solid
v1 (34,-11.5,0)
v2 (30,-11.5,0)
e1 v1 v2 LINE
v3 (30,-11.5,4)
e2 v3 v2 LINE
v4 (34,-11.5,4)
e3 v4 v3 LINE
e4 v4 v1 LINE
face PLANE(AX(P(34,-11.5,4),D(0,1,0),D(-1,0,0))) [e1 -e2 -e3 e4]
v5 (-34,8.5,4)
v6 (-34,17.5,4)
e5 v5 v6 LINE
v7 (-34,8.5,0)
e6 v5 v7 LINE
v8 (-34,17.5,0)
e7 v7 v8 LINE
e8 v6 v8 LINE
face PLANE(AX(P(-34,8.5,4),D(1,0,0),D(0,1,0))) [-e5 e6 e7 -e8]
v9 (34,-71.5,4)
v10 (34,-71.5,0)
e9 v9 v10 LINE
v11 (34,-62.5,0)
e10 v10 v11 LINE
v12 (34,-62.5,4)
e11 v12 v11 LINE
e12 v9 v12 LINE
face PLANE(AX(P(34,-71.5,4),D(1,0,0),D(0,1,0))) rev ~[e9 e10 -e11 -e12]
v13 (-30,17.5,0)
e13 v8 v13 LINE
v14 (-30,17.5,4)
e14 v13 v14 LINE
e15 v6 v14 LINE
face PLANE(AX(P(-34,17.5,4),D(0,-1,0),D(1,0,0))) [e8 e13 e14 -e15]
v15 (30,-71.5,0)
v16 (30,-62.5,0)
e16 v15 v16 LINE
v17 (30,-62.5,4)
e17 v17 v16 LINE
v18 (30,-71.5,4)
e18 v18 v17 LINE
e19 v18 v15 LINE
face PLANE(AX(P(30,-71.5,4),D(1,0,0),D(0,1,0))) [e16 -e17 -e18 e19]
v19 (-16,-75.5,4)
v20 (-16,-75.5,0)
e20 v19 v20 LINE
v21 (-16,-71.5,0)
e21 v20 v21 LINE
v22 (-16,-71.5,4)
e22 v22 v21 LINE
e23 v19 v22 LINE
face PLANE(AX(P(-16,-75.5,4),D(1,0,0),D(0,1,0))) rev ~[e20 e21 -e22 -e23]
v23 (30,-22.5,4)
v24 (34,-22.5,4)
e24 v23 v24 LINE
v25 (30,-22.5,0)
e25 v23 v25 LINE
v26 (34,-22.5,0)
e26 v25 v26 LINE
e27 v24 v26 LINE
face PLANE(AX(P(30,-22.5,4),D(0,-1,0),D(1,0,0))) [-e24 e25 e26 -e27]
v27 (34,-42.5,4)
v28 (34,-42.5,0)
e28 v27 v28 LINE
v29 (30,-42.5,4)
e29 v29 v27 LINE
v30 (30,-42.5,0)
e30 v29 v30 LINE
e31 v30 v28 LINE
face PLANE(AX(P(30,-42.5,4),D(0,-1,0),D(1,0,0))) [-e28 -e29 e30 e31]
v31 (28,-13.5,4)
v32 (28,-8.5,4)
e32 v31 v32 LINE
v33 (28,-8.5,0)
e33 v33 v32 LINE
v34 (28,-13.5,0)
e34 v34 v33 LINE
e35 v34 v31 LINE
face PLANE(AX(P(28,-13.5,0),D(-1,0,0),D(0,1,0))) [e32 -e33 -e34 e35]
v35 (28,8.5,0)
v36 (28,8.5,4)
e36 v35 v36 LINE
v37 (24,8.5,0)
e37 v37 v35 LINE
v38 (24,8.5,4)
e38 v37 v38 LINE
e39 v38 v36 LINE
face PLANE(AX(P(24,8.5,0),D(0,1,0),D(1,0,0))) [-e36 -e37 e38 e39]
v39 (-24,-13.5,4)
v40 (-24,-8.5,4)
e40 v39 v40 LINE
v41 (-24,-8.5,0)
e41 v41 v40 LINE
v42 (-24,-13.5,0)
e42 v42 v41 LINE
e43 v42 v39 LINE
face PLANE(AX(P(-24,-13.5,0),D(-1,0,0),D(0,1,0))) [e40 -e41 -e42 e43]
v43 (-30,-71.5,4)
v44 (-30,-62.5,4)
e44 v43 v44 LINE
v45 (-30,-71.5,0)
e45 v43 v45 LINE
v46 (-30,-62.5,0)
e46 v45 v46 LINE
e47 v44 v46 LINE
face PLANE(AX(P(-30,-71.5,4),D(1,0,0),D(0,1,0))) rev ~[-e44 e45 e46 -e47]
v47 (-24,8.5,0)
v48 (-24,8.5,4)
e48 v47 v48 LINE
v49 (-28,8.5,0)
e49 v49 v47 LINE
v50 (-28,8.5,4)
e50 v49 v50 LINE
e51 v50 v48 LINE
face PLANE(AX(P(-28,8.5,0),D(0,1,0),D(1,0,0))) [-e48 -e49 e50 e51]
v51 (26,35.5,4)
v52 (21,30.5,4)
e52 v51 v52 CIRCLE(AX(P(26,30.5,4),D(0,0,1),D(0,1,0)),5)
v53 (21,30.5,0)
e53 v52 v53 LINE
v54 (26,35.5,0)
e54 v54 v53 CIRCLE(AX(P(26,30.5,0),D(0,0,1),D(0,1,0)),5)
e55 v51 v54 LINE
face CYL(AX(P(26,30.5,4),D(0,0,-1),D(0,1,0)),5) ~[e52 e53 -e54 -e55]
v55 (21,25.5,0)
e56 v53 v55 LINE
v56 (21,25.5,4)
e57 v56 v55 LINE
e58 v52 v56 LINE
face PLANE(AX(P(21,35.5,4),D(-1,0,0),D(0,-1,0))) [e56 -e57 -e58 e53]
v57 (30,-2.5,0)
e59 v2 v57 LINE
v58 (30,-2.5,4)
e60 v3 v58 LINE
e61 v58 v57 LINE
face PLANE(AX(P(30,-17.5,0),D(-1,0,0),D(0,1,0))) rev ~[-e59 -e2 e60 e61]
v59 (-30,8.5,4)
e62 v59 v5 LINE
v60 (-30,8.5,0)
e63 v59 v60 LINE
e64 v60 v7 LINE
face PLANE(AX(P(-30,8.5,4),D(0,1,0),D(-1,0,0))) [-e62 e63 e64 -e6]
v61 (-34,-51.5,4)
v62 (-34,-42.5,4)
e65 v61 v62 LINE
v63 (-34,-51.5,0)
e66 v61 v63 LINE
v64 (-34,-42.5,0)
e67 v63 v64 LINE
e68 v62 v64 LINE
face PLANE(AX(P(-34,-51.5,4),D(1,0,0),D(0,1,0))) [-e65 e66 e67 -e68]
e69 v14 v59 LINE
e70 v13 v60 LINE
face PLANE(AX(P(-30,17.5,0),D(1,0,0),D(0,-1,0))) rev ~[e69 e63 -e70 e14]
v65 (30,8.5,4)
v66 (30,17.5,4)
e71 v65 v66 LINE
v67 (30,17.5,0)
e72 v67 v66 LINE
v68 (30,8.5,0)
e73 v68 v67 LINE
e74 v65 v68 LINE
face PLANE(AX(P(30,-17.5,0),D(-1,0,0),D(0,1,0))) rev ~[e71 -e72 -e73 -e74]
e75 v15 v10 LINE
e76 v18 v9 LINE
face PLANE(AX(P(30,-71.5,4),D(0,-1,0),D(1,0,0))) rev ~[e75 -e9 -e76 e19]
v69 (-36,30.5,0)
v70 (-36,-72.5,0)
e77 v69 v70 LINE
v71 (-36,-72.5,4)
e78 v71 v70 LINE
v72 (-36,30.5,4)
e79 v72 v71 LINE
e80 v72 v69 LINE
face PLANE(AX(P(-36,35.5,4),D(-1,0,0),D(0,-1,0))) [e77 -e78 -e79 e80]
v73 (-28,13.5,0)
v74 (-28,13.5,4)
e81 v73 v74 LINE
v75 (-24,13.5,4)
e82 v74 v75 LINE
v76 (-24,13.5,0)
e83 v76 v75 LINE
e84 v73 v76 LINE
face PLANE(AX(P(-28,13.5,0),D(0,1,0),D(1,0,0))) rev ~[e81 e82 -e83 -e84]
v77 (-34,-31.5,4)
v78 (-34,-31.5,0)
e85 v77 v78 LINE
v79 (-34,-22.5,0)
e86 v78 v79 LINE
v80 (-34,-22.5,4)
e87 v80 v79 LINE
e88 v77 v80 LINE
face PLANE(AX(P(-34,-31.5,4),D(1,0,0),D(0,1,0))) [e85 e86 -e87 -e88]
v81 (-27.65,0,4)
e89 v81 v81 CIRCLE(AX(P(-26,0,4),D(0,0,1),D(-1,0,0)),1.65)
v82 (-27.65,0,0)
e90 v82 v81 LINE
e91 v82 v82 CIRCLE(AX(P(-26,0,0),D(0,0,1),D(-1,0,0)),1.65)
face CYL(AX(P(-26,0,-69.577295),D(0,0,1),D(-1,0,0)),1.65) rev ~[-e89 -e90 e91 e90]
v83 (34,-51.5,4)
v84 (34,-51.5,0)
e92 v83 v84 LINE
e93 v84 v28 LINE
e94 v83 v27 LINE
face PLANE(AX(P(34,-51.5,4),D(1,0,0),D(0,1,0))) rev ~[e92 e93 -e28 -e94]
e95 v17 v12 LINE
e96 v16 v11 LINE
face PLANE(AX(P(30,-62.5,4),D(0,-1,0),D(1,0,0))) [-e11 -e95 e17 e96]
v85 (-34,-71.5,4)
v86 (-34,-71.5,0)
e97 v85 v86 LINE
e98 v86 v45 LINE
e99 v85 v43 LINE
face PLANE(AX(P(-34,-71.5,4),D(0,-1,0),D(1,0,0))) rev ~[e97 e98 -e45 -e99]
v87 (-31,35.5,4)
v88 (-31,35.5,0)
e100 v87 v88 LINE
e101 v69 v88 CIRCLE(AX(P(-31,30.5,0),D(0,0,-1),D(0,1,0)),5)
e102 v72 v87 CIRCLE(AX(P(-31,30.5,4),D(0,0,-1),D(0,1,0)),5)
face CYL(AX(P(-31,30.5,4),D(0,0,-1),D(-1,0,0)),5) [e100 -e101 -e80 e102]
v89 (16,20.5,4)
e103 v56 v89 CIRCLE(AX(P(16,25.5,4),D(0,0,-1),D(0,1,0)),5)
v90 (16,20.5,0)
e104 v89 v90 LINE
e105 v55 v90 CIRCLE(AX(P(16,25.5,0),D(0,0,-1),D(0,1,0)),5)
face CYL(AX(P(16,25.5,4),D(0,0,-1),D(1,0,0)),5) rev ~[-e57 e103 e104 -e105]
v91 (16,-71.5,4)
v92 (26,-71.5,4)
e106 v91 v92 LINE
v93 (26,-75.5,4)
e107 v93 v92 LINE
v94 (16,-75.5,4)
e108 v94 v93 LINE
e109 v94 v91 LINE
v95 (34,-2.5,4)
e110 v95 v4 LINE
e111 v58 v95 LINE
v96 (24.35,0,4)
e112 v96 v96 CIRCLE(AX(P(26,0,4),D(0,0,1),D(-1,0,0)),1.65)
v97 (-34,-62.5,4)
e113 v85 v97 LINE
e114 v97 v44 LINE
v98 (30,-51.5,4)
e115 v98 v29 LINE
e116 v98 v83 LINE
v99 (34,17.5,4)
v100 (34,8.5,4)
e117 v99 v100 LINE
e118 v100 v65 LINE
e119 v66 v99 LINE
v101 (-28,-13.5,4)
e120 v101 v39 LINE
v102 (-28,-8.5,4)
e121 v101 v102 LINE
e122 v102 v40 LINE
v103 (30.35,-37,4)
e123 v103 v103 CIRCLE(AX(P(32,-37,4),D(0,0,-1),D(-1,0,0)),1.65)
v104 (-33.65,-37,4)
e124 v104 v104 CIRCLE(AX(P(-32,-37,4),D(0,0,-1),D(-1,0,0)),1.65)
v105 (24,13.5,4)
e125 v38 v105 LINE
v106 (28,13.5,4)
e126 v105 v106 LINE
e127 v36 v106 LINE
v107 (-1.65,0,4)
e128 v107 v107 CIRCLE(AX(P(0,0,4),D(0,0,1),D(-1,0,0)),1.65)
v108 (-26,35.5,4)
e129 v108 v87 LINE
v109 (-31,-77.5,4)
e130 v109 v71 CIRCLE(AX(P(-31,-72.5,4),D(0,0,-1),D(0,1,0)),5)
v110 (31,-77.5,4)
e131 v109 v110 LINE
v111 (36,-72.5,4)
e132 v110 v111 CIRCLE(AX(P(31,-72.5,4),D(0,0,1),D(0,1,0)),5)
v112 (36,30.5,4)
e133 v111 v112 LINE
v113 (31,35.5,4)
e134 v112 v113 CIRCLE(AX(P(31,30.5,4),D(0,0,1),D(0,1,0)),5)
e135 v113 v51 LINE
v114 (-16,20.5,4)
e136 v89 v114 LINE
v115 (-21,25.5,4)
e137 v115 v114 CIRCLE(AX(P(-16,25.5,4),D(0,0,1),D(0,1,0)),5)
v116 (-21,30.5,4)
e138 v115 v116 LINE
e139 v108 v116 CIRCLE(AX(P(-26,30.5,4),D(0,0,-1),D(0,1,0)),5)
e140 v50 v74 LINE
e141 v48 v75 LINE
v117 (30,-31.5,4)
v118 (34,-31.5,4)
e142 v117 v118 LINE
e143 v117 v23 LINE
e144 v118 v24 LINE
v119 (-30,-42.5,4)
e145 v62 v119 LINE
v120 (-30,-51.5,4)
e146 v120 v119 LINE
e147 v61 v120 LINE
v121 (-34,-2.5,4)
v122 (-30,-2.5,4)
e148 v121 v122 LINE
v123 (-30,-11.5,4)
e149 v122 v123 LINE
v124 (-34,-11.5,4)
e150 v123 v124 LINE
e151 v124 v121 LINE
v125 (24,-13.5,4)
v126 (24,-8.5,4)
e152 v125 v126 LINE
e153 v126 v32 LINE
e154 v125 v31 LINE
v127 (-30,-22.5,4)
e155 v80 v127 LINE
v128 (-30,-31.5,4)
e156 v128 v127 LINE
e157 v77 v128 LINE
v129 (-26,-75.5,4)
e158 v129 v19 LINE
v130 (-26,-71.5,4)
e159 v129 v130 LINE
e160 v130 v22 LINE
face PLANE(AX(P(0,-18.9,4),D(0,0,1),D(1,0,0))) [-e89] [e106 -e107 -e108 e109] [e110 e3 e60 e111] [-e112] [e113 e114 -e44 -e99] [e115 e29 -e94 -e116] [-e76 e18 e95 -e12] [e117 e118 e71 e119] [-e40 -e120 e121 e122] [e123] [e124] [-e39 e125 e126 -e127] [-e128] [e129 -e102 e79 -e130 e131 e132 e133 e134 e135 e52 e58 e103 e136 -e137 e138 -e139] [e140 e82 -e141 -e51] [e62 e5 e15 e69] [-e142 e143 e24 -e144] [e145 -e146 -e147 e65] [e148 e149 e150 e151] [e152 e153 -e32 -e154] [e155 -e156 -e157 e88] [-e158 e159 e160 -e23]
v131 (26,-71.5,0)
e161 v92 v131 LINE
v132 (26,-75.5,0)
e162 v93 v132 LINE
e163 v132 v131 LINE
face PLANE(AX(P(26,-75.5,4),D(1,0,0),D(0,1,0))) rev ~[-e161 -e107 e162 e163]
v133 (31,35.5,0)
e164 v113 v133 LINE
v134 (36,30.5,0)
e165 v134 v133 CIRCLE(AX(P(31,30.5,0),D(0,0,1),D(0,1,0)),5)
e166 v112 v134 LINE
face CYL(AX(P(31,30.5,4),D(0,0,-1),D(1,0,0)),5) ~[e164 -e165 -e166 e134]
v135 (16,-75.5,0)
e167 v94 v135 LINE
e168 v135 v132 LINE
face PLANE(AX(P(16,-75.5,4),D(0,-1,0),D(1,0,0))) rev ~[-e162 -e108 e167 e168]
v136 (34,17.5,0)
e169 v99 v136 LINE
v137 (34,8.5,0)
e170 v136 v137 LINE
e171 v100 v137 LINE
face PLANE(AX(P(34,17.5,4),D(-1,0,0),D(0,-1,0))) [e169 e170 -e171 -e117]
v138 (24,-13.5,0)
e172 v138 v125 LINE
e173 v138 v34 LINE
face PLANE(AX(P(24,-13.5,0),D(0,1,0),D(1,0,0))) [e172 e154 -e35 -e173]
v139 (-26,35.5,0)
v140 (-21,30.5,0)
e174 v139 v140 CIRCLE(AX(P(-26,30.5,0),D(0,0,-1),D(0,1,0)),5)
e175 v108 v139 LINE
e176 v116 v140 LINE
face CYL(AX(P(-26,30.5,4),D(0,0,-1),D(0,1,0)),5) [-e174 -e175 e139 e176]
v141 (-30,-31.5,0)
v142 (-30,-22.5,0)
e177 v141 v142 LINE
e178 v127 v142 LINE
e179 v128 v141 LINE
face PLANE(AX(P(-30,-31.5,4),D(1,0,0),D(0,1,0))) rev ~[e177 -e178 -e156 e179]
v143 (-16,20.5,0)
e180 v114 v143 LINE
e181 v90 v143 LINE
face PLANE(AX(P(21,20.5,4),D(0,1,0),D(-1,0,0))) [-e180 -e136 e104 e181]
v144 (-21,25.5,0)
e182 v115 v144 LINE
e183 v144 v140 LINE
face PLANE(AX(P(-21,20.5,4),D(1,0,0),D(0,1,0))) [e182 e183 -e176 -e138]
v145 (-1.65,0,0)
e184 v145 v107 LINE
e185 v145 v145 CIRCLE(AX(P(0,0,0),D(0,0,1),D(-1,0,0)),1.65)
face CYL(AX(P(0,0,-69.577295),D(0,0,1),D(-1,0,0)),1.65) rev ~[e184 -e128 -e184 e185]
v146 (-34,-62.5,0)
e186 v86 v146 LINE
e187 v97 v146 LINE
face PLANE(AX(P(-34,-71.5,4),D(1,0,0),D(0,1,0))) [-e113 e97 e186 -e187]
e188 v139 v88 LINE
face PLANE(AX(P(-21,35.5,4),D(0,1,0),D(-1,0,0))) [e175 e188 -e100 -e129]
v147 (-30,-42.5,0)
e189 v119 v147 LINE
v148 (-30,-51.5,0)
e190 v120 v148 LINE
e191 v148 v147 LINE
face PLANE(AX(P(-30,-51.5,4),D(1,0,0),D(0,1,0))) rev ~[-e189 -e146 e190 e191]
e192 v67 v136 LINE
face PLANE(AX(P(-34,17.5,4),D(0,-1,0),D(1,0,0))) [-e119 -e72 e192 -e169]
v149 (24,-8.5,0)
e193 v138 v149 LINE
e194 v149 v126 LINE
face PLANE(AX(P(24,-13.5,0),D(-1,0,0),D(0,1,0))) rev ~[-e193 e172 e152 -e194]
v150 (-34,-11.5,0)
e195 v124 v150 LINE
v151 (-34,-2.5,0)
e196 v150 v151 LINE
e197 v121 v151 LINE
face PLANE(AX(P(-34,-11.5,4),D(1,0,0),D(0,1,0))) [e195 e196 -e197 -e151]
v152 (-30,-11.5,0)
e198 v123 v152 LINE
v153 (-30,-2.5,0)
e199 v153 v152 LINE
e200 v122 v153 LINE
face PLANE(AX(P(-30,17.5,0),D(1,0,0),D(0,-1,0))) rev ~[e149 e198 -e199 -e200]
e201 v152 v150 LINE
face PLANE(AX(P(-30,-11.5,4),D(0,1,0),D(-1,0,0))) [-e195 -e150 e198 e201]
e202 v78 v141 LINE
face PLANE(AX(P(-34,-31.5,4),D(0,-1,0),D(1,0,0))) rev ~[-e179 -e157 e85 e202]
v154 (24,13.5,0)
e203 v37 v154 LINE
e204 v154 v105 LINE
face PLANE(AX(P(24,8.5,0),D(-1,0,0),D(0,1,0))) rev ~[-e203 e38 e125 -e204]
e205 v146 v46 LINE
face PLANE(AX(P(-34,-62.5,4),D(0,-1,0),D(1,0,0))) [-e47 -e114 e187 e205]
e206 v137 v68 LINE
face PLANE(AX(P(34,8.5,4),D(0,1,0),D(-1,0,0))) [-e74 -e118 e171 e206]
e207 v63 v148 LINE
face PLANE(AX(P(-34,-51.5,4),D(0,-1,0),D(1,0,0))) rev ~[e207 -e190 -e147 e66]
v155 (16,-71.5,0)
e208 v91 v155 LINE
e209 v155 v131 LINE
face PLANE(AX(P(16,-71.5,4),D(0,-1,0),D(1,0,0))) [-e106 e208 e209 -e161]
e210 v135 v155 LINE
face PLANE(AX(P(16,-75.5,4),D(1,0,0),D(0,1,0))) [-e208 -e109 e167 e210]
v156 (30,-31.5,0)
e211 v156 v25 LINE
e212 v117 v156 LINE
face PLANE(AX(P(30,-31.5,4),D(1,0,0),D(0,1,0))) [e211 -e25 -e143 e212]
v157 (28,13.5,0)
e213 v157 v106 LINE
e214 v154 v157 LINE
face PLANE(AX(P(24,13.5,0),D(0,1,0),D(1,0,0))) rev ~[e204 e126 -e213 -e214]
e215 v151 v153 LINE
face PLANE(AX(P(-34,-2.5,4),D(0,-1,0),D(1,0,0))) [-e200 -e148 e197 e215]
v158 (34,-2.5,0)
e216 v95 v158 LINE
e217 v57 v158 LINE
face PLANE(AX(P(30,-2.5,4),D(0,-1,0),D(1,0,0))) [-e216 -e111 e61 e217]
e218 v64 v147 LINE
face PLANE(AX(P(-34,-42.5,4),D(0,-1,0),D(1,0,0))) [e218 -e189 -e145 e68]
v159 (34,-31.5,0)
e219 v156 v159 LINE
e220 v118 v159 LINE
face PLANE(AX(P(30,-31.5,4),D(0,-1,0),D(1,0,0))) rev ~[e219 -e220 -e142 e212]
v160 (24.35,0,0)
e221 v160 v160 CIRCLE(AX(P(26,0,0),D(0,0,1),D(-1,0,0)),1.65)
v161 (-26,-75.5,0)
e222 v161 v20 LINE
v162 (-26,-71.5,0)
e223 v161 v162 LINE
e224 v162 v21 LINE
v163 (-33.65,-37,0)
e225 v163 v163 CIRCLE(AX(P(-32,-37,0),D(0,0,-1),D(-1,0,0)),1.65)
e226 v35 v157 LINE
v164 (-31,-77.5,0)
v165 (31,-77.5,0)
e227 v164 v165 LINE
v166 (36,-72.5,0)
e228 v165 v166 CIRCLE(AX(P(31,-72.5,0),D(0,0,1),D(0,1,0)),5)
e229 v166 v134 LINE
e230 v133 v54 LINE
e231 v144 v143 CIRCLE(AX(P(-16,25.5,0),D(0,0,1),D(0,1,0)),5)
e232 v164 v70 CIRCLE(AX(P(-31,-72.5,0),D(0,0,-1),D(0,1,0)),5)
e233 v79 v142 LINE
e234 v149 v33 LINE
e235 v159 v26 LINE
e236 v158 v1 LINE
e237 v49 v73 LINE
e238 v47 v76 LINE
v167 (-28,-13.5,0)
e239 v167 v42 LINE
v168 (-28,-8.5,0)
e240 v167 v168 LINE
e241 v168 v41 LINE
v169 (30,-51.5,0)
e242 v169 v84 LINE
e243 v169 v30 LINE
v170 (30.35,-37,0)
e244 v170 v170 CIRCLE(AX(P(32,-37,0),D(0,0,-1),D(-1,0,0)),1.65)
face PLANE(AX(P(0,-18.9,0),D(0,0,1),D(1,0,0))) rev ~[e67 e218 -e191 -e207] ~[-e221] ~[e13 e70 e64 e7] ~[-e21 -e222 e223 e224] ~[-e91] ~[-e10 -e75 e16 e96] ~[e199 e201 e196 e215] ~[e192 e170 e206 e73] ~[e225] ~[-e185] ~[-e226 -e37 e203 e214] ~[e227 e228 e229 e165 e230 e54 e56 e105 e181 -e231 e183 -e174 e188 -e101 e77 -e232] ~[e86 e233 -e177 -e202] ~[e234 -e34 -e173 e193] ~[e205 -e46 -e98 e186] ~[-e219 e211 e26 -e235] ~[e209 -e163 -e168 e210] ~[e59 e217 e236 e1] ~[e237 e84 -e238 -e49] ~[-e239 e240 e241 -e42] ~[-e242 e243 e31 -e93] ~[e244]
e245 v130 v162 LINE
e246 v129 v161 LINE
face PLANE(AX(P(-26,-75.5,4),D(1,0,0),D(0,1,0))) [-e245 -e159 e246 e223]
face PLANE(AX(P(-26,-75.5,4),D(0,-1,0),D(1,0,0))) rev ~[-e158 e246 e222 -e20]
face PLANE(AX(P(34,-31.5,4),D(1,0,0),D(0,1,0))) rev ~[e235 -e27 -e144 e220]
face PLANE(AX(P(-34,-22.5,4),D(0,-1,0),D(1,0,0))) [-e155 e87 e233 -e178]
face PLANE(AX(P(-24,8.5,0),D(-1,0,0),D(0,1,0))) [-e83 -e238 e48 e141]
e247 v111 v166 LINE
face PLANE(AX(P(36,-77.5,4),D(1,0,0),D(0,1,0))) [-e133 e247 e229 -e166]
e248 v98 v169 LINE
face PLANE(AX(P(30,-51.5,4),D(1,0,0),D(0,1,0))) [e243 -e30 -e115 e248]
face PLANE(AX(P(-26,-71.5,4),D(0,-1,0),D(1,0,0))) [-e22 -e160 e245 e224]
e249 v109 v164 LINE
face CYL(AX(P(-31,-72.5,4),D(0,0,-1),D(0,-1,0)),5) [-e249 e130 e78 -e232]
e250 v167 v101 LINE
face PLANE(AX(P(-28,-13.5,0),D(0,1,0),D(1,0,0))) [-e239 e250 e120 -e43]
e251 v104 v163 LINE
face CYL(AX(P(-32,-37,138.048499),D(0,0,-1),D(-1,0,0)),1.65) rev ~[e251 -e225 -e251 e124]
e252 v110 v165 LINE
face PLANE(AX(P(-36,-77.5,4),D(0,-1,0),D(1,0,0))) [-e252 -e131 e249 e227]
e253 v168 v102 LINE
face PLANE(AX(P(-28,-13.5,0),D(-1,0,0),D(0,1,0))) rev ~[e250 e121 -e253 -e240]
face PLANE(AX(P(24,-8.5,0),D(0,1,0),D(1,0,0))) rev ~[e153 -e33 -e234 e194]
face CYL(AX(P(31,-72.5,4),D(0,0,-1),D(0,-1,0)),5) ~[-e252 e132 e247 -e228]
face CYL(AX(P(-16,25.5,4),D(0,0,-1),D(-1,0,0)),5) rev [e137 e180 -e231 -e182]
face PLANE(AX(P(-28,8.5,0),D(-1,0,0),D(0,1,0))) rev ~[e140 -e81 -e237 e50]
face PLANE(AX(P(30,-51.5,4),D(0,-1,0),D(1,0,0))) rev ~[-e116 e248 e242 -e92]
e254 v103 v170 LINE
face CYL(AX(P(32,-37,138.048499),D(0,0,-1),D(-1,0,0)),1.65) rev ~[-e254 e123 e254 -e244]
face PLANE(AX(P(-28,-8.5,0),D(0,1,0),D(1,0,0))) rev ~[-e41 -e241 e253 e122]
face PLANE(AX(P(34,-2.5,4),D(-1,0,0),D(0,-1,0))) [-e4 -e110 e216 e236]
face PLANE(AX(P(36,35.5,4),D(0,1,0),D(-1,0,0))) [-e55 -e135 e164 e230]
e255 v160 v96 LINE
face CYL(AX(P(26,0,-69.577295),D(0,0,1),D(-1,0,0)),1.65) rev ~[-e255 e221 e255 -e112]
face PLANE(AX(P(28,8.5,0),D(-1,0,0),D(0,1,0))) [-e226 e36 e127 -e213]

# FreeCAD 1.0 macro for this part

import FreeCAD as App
import Part
import Sketcher

V = App.Vector
Q = App.Units.Quantity


def edges_at(feature, points):
    """Names of the edges that pass closest to the given points."""
    edges = feature.Shape.Edges
    near = lambda p: min(range(len(edges)), key=lambda i: edges[i].distToShape(Part.Vertex(*p))[0])
    return sorted({f"Edge{near(p) + 1}" for p in points})

doc = App.newDocument("Part")
body = doc.addObject("PartDesign::Body", "Body")

sketch1 = body.newObject("Sketcher::SketchObject", "Sketch")
sketch1.AttachmentSupport = (doc.getObject("XY_Plane"), [""])
sketch1.MapMode = "FlatFace"
sketch1.addGeometry(Part.LineSegment(V(30, -17.5, 0), V(30, 17.5, 0)), False)
sketch1.addGeometry(Part.LineSegment(V(30, 17.5, 0), V(-30, 17.5, 0)), False)
sketch1.addGeometry(Part.LineSegment(V(-30, 17.5, 0), V(-30, -17.5, 0)), False)
sketch1.addGeometry(Part.LineSegment(V(-30, -17.5, 0), V(30, -17.5, 0)), False)
sketch1.addGeometry(Part.LineSegment(V(-24, -13.5, 0), V(-28, -13.5, 0)), False)
sketch1.addGeometry(Part.LineSegment(V(-28, -13.5, 0), V(-28, -8.5, 0)), False)
sketch1.addGeometry(Part.LineSegment(V(-28, -8.5, 0), V(-24, -8.5, 0)), False)
sketch1.addGeometry(Part.LineSegment(V(-24, -8.5, 0), V(-24, -13.5, 0)), False)
sketch1.addGeometry(Part.LineSegment(V(28, -13.5, 0), V(24, -13.5, 0)), False)
sketch1.addGeometry(Part.LineSegment(V(24, -13.5, 0), V(24, -8.5, 0)), False)
sketch1.addGeometry(Part.LineSegment(V(24, -8.5, 0), V(28, -8.5, 0)), False)
sketch1.addGeometry(Part.LineSegment(V(28, -8.5, 0), V(28, -13.5, 0)), False)
sketch1.addGeometry(Part.LineSegment(V(-24, 8.5, 0), V(-28, 8.5, 0)), False)
sketch1.addGeometry(Part.LineSegment(V(-28, 8.5, 0), V(-28, 13.5, 0)), False)
sketch1.addGeometry(Part.LineSegment(V(-28, 13.5, 0), V(-24, 13.5, 0)), False)
sketch1.addGeometry(Part.LineSegment(V(-24, 13.5, 0), V(-24, 8.5, 0)), False)
sketch1.addGeometry(Part.LineSegment(V(28, 8.5, 0), V(24, 8.5, 0)), False)
sketch1.addGeometry(Part.LineSegment(V(24, 8.5, 0), V(24, 13.5, 0)), False)
sketch1.addGeometry(Part.LineSegment(V(24, 13.5, 0), V(28, 13.5, 0)), False)
sketch1.addGeometry(Part.LineSegment(V(28, 13.5, 0), V(28, 8.5, 0)), False)
sketch1.addConstraint(Sketcher.Constraint("Coincident", 0, 2, 1, 1))
sketch1.addConstraint(Sketcher.Constraint("Coincident", 1, 2, 2, 1))
sketch1.addConstraint(Sketcher.Constraint("Coincident", 2, 2, 3, 1))
sketch1.addConstraint(Sketcher.Constraint("Coincident", 3, 2, 0, 1))
sketch1.addConstraint(Sketcher.Constraint("Coincident", 4, 2, 5, 1))
sketch1.addConstraint(Sketcher.Constraint("Coincident", 5, 2, 6, 1))
sketch1.addConstraint(Sketcher.Constraint("Coincident", 6, 2, 7, 1))
sketch1.addConstraint(Sketcher.Constraint("Coincident", 7, 2, 4, 1))
sketch1.addConstraint(Sketcher.Constraint("Coincident", 8, 2, 9, 1))
sketch1.addConstraint(Sketcher.Constraint("Coincident", 9, 2, 10, 1))
sketch1.addConstraint(Sketcher.Constraint("Coincident", 10, 2, 11, 1))
sketch1.addConstraint(Sketcher.Constraint("Coincident", 11, 2, 8, 1))
sketch1.addConstraint(Sketcher.Constraint("Coincident", 12, 2, 13, 1))
sketch1.addConstraint(Sketcher.Constraint("Coincident", 13, 2, 14, 1))
sketch1.addConstraint(Sketcher.Constraint("Coincident", 14, 2, 15, 1))
sketch1.addConstraint(Sketcher.Constraint("Coincident", 15, 2, 12, 1))
sketch1.addConstraint(Sketcher.Constraint("Coincident", 16, 2, 17, 1))
sketch1.addConstraint(Sketcher.Constraint("Coincident", 17, 2, 18, 1))
sketch1.addConstraint(Sketcher.Constraint("Coincident", 18, 2, 19, 1))
sketch1.addConstraint(Sketcher.Constraint("Coincident", 19, 2, 16, 1))
sketch1.addConstraint(Sketcher.Constraint("Vertical", 0))
sketch1.addConstraint(Sketcher.Constraint("Horizontal", 1))
sketch1.addConstraint(Sketcher.Constraint("Vertical", 2))
sketch1.addConstraint(Sketcher.Constraint("Horizontal", 3))
sketch1.addConstraint(Sketcher.Constraint("Horizontal", 4))
sketch1.addConstraint(Sketcher.Constraint("Vertical", 5))
sketch1.addConstraint(Sketcher.Constraint("Horizontal", 6))
sketch1.addConstraint(Sketcher.Constraint("Vertical", 7))
sketch1.addConstraint(Sketcher.Constraint("Horizontal", 8))
sketch1.addConstraint(Sketcher.Constraint("Vertical", 9))
sketch1.addConstraint(Sketcher.Constraint("Horizontal", 10))
sketch1.addConstraint(Sketcher.Constraint("Vertical", 11))
sketch1.addConstraint(Sketcher.Constraint("Horizontal", 12))
sketch1.addConstraint(Sketcher.Constraint("Vertical", 13))
sketch1.addConstraint(Sketcher.Constraint("Horizontal", 14))
sketch1.addConstraint(Sketcher.Constraint("Vertical", 15))
sketch1.addConstraint(Sketcher.Constraint("Horizontal", 16))
sketch1.addConstraint(Sketcher.Constraint("Vertical", 17))
sketch1.addConstraint(Sketcher.Constraint("Horizontal", 18))
sketch1.addConstraint(Sketcher.Constraint("Vertical", 19))
sketch1.addConstraint(Sketcher.Constraint("Symmetric", 0, 2, 2, 2, -1, 1))
sketch1.addConstraint(Sketcher.Constraint("Symmetric", 10, 2, 12, 2, -1, 1))
sketch1.addConstraint(Sketcher.Constraint("Symmetric", 8, 2, 14, 2, -1, 1))
sketch1.addConstraint(Sketcher.Constraint("Symmetric", 6, 2, 16, 2, -1, 1))
sketch1.addConstraint(Sketcher.Constraint("Symmetric", 4, 2, 18, 2, -1, 1))
sketch1.addConstraint(Sketcher.Constraint("Symmetric", 7, 2, 8, 2, -2))
sketch1.addConstraint(Sketcher.Constraint("Symmetric", 5, 2, 10, 2, -2))
sketch1.addConstraint(Sketcher.Constraint("DistanceX", 1, 2, 1, 1, Q("60 mm")))
sketch1.addConstraint(Sketcher.Constraint("DistanceX", 4, 2, 4, 1, Q("4 mm")))
sketch1.addConstraint(Sketcher.Constraint("DistanceY", 0, 1, 0, 2, Q("35 mm")))
sketch1.addConstraint(Sketcher.Constraint("DistanceY", 5, 1, 5, 2, Q("5 mm")))
sketch1.addConstraint(Sketcher.Constraint("DistanceX", 4, 2, -1, 1, Q("28 mm")))
sketch1.addConstraint(Sketcher.Constraint("DistanceY", 2, 2, 4, 2, Q("4 mm")))
pad1 = body.newObject("PartDesign::Pad", "Pad")
pad1.Profile = sketch1
pad1.Length = 4

sketch2 = body.newObject("Sketcher::SketchObject", "Sketch001")
sketch2.AttachmentSupport = (doc.getObject("XY_Plane"), [""])
sketch2.MapMode = "FlatFace"
sketch2.addGeometry(Part.Circle(V(-26, 0, 0), V(0, 0, 1), 1.6), False)
sketch2.addGeometry(Part.Circle(V(26, 0, 0), V(0, 0, 1), 1.6), False)
sketch2.addConstraint(Sketcher.Constraint("Equal", 0, 1))
sketch2.addConstraint(Sketcher.Constraint("Symmetric", 0, 3, 1, 3, -1, 1))
sketch2.addConstraint(Sketcher.Constraint("PointOnObject", 0, 3, -1))
sketch2.addConstraint(Sketcher.Constraint("Diameter", 0, Q("3.3 mm")))
sketch2.addConstraint(Sketcher.Constraint("DistanceX", 0, 3, -1, 1, Q("26 mm")))
doc.recompute()
hole = body.newObject("PartDesign::Hole", "Hole")
hole.Profile = sketch2
hole.ThreadType = "None"
hole.Diameter = 3.3
hole.DepthType = "ThroughAll"
hole.Reversed = True

sketch3 = body.newObject("Sketcher::SketchObject", "Sketch002")
sketch3.AttachmentSupport = (doc.getObject("XY_Plane"), [""])
sketch3.MapMode = "FlatFace"
sketch3.addGeometry(Part.Circle(V(0, 0, 0), V(0, 0, 1), 1.6), False)
sketch3.addConstraint(Sketcher.Constraint("Coincident", 0, 3, -1, 1))
sketch3.addConstraint(Sketcher.Constraint("Diameter", 0, Q("3.3 mm")))
doc.recompute()
hole2 = body.newObject("PartDesign::Hole", "Hole001")
hole2.Profile = sketch3
hole2.ThreadType = "None"
hole2.Diameter = 3.3
hole2.DepthType = "ThroughAll"
hole2.Reversed = True

sketch4 = body.newObject("Sketcher::SketchObject", "Sketch003")
sketch4.AttachmentSupport = (doc.getObject("XY_Plane"), [""])
sketch4.MapMode = "FlatFace"
sketch4.AttachmentOffset = App.Placement(V(0, 0, 4), App.Rotation())
sketch4.addGeometry(Part.LineSegment(V(-36, -77.5, 0), V(36, -77.5, 0)), False)
sketch4.addGeometry(Part.LineSegment(V(36, -77.5, 0), V(36, 35.5, 0)), False)
sketch4.addGeometry(Part.LineSegment(V(36, 35.5, 0), V(21, 35.5, 0)), False)
sketch4.addGeometry(Part.LineSegment(V(21, 35.5, 0), V(21, 20.5, 0)), False)
sketch4.addGeometry(Part.LineSegment(V(21, 20.5, 0), V(-21, 20.5, 0)), False)
sketch4.addGeometry(Part.LineSegment(V(-21, 20.5, 0), V(-21, 35.5, 0)), False)
sketch4.addGeometry(Part.LineSegment(V(-21, 35.5, 0), V(-36, 35.5, 0)), False)
sketch4.addGeometry(Part.LineSegment(V(-36, 35.5, 0), V(-36, -77.5, 0)), False)
sketch4.addGeometry(Part.LineSegment(V(-30, -71.5, 0), V(-34, -71.5, 0)), False)
sketch4.addGeometry(Part.LineSegment(V(-34, -71.5, 0), V(-34, -62.5, 0)), False)
sketch4.addGeometry(Part.LineSegment(V(-34, -62.5, 0), V(-30, -62.5, 0)), False)
sketch4.addGeometry(Part.LineSegment(V(-30, -62.5, 0), V(-30, -71.5, 0)), False)
sketch4.addGeometry(Part.LineSegment(V(-16, -75.5, 0), V(-26, -75.5, 0)), False)
sketch4.addGeometry(Part.LineSegment(V(-26, -75.5, 0), V(-26, -71.5, 0)), False)
sketch4.addGeometry(Part.LineSegment(V(-26, -71.5, 0), V(-16, -71.5, 0)), False)
sketch4.addGeometry(Part.LineSegment(V(-16, -71.5, 0), V(-16, -75.5, 0)), False)
sketch4.addGeometry(Part.LineSegment(V(-30, -51.5, 0), V(-34, -51.5, 0)), False)
sketch4.addGeometry(Part.LineSegment(V(-34, -51.5, 0), V(-34, -42.5, 0)), False)
sketch4.addGeometry(Part.LineSegment(V(-34, -42.5, 0), V(-30, -42.5, 0)), False)
sketch4.addGeometry(Part.LineSegment(V(-30, -42.5, 0), V(-30, -51.5, 0)), False)
sketch4.addGeometry(Part.LineSegment(V(26, -75.5, 0), V(16, -75.5, 0)), False)
sketch4.addGeometry(Part.LineSegment(V(16, -75.5, 0), V(16, -71.5, 0)), False)
sketch4.addGeometry(Part.LineSegment(V(16, -71.5, 0), V(26, -71.5, 0)), False)
sketch4.addGeometry(Part.LineSegment(V(26, -71.5, 0), V(26, -75.5, 0)), False)
sketch4.addGeometry(Part.LineSegment(V(34, -71.5, 0), V(30, -71.5, 0)), False)
sketch4.addGeometry(Part.LineSegment(V(30, -71.5, 0), V(30, -62.5, 0)), False)
sketch4.addGeometry(Part.LineSegment(V(30, -62.5, 0), V(34, -62.5, 0)), False)
sketch4.addGeometry(Part.LineSegment(V(34, -62.5, 0), V(34, -71.5, 0)), False)
sketch4.addGeometry(Part.LineSegment(V(34, -51.5, 0), V(30, -51.5, 0)), False)
sketch4.addGeometry(Part.LineSegment(V(30, -51.5, 0), V(30, -42.5, 0)), False)
sketch4.addGeometry(Part.LineSegment(V(30, -42.5, 0), V(34, -42.5, 0)), False)
sketch4.addGeometry(Part.LineSegment(V(34, -42.5, 0), V(34, -51.5, 0)), False)
sketch4.addGeometry(Part.LineSegment(V(-30, -31.5, 0), V(-34, -31.5, 0)), False)
sketch4.addGeometry(Part.LineSegment(V(-34, -31.5, 0), V(-34, -22.5, 0)), False)
sketch4.addGeometry(Part.LineSegment(V(-34, -22.5, 0), V(-30, -22.5, 0)), False)
sketch4.addGeometry(Part.LineSegment(V(-30, -22.5, 0), V(-30, -31.5, 0)), False)
sketch4.addGeometry(Part.LineSegment(V(34, -31.5, 0), V(30, -31.5, 0)), False)
sketch4.addGeometry(Part.LineSegment(V(30, -31.5, 0), V(30, -22.5, 0)), False)
sketch4.addGeometry(Part.LineSegment(V(30, -22.5, 0), V(34, -22.5, 0)), False)
sketch4.addGeometry(Part.LineSegment(V(34, -22.5, 0), V(34, -31.5, 0)), False)
sketch4.addGeometry(Part.LineSegment(V(-34, 8.5, 0), V(-34, 17.5, 0)), False)
sketch4.addGeometry(Part.LineSegment(V(-34, 17.5, 0), V(34, 17.5, 0)), False)
sketch4.addGeometry(Part.LineSegment(V(34, 17.5, 0), V(34, 8.5, 0)), False)
sketch4.addGeometry(Part.LineSegment(V(34, 8.5, 0), V(30, 8.5, 0)), False)
sketch4.addGeometry(Part.LineSegment(V(30, 8.5, 0), V(30, -2.5, 0)), False)
sketch4.addGeometry(Part.LineSegment(V(30, -2.5, 0), V(34, -2.5, 0)), False)
sketch4.addGeometry(Part.LineSegment(V(34, -2.5, 0), V(34, -11.5, 0)), False)
sketch4.addGeometry(Part.LineSegment(V(34, -11.5, 0), V(30, -11.5, 0)), False)
sketch4.addGeometry(Part.LineSegment(V(30, -11.5, 0), V(30, -17.5, 0)), False)
sketch4.addGeometry(Part.LineSegment(V(30, -17.5, 0), V(-30, -17.5, 0)), False)
sketch4.addGeometry(Part.LineSegment(V(-30, -17.5, 0), V(-30, -11.5, 0)), False)
sketch4.addGeometry(Part.LineSegment(V(-30, -11.5, 0), V(-34, -11.5, 0)), False)
sketch4.addGeometry(Part.LineSegment(V(-34, -11.5, 0), V(-34, -2.5, 0)), False)
sketch4.addGeometry(Part.LineSegment(V(-34, -2.5, 0), V(-30, -2.5, 0)), False)
sketch4.addGeometry(Part.LineSegment(V(-30, -2.5, 0), V(-30, 8.5, 0)), False)
sketch4.addGeometry(Part.LineSegment(V(-30, 8.5, 0), V(-34, 8.5, 0)), False)
sketch4.addConstraint(Sketcher.Constraint("Coincident", 0, 2, 1, 1))
sketch4.addConstraint(Sketcher.Constraint("Coincident", 1, 2, 2, 1))
sketch4.addConstraint(Sketcher.Constraint("Coincident", 2, 2, 3, 1))
sketch4.addConstraint(Sketcher.Constraint("Coincident", 3, 2, 4, 1))
sketch4.addConstraint(Sketcher.Constraint("Coincident", 4, 2, 5, 1))
sketch4.addConstraint(Sketcher.Constraint("Coincident", 5, 2, 6, 1))
sketch4.addConstraint(Sketcher.Constraint("Coincident", 6, 2, 7, 1))
sketch4.addConstraint(Sketcher.Constraint("Coincident", 7, 2, 0, 1))
sketch4.addConstraint(Sketcher.Constraint("Coincident", 8, 2, 9, 1))
sketch4.addConstraint(Sketcher.Constraint("Coincident", 9, 2, 10, 1))
sketch4.addConstraint(Sketcher.Constraint("Coincident", 10, 2, 11, 1))
sketch4.addConstraint(Sketcher.Constraint("Coincident", 11, 2, 8, 1))
sketch4.addConstraint(Sketcher.Constraint("Coincident", 12, 2, 13, 1))
sketch4.addConstraint(Sketcher.Constraint("Coincident", 13, 2, 14, 1))
sketch4.addConstraint(Sketcher.Constraint("Coincident", 14, 2, 15, 1))
sketch4.addConstraint(Sketcher.Constraint("Coincident", 15, 2, 12, 1))
sketch4.addConstraint(Sketcher.Constraint("Coincident", 16, 2, 17, 1))
sketch4.addConstraint(Sketcher.Constraint("Coincident", 17, 2, 18, 1))
sketch4.addConstraint(Sketcher.Constraint("Coincident", 18, 2, 19, 1))
sketch4.addConstraint(Sketcher.Constraint("Coincident", 19, 2, 16, 1))
sketch4.addConstraint(Sketcher.Constraint("Coincident", 20, 2, 21, 1))
sketch4.addConstraint(Sketcher.Constraint("Coincident", 21, 2, 22, 1))
sketch4.addConstraint(Sketcher.Constraint("Coincident", 22, 2, 23, 1))
sketch4.addConstraint(Sketcher.Constraint("Coincident", 23, 2, 20, 1))
sketch4.addConstraint(Sketcher.Constraint("Coincident", 24, 2, 25, 1))
sketch4.addConstraint(Sketcher.Constraint("Coincident", 25, 2, 26, 1))
sketch4.addConstraint(Sketcher.Constraint("Coincident", 26, 2, 27, 1))
sketch4.addConstraint(Sketcher.Constraint("Coincident", 27, 2, 24, 1))
sketch4.addConstraint(Sketcher.Constraint("Coincident", 28, 2, 29, 1))
sketch4.addConstraint(Sketcher.Constraint("Coincident", 29, 2, 30, 1))
sketch4.addConstraint(Sketcher.Constraint("Coincident", 30, 2, 31, 1))
sketch4.addConstraint(Sketcher.Constraint("Coincident", 31, 2, 28, 1))
sketch4.addConstraint(Sketcher.Constraint("Coincident", 32, 2, 33, 1))
sketch4.addConstraint(Sketcher.Constraint("Coincident", 33, 2, 34, 1))
sketch4.addConstraint(Sketcher.Constraint("Coincident", 34, 2, 35, 1))
sketch4.addConstraint(Sketcher.Constraint("Coincident", 35, 2, 32, 1))
sketch4.addConstraint(Sketcher.Constraint("Coincident", 36, 2, 37, 1))
sketch4.addConstraint(Sketcher.Constraint("Coincident", 37, 2, 38, 1))
sketch4.addConstraint(Sketcher.Constraint("Coincident", 38, 2, 39, 1))
sketch4.addConstraint(Sketcher.Constraint("Coincident", 39, 2, 36, 1))
sketch4.addConstraint(Sketcher.Constraint("Coincident", 40, 2, 41, 1))
sketch4.addConstraint(Sketcher.Constraint("Coincident", 41, 2, 42, 1))
sketch4.addConstraint(Sketcher.Constraint("Coincident", 42, 2, 43, 1))
sketch4.addConstraint(Sketcher.Constraint("Coincident", 43, 2, 44, 1))
sketch4.addConstraint(Sketcher.Constraint("Coincident", 44, 2, 45, 1))
sketch4.addConstraint(Sketcher.Constraint("Coincident", 45, 2, 46, 1))
sketch4.addConstraint(Sketcher.Constraint("Coincident", 46, 2, 47, 1))
sketch4.addConstraint(Sketcher.Constraint("Coincident", 47, 2, 48, 1))
sketch4.addConstraint(Sketcher.Constraint("Coincident", 48, 2, 49, 1))
sketch4.addConstraint(Sketcher.Constraint("Coincident", 49, 2, 50, 1))
sketch4.addConstraint(Sketcher.Constraint("Coincident", 50, 2, 51, 1))
sketch4.addConstraint(Sketcher.Constraint("Coincident", 51, 2, 52, 1))
sketch4.addConstraint(Sketcher.Constraint("Coincident", 52, 2, 53, 1))
sketch4.addConstraint(Sketcher.Constraint("Coincident", 53, 2, 54, 1))
sketch4.addConstraint(Sketcher.Constraint("Coincident", 54, 2, 55, 1))
sketch4.addConstraint(Sketcher.Constraint("Coincident", 55, 2, 40, 1))
sketch4.addConstraint(Sketcher.Constraint("Horizontal", 0))
sketch4.addConstraint(Sketcher.Constraint("Vertical", 1))
sketch4.addConstraint(Sketcher.Constraint("Horizontal", 2))
sketch4.addConstraint(Sketcher.Constraint("Vertical", 3))
sketch4.addConstraint(Sketcher.Constraint("Horizontal", 4))
sketch4.addConstraint(Sketcher.Constraint("Vertical", 5))
sketch4.addConstraint(Sketcher.Constraint("Horizontal", 6))
sketch4.addConstraint(Sketcher.Constraint("Vertical", 7))
sketch4.addConstraint(Sketcher.Constraint("Horizontal", 8))
sketch4.addConstraint(Sketcher.Constraint("Vertical", 9))
sketch4.addConstraint(Sketcher.Constraint("Horizontal", 10))
sketch4.addConstraint(Sketcher.Constraint("Vertical", 11))
sketch4.addConstraint(Sketcher.Constraint("Horizontal", 12))
sketch4.addConstraint(Sketcher.Constraint("Vertical", 13))
sketch4.addConstraint(Sketcher.Constraint("Horizontal", 14))
sketch4.addConstraint(Sketcher.Constraint("Vertical", 15))
sketch4.addConstraint(Sketcher.Constraint("Horizontal", 16))
sketch4.addConstraint(Sketcher.Constraint("Vertical", 17))
sketch4.addConstraint(Sketcher.Constraint("Horizontal", 18))
sketch4.addConstraint(Sketcher.Constraint("Vertical", 19))
sketch4.addConstraint(Sketcher.Constraint("Horizontal", 20))
sketch4.addConstraint(Sketcher.Constraint("Vertical", 21))
sketch4.addConstraint(Sketcher.Constraint("Horizontal", 22))
sketch4.addConstraint(Sketcher.Constraint("Vertical", 23))
sketch4.addConstraint(Sketcher.Constraint("Horizontal", 24))
sketch4.addConstraint(Sketcher.Constraint("Vertical", 25))
sketch4.addConstraint(Sketcher.Constraint("Horizontal", 26))
sketch4.addConstraint(Sketcher.Constraint("Vertical", 27))
sketch4.addConstraint(Sketcher.Constraint("Horizontal", 28))
sketch4.addConstraint(Sketcher.Constraint("Vertical", 29))
sketch4.addConstraint(Sketcher.Constraint("Horizontal", 30))
sketch4.addConstraint(Sketcher.Constraint("Vertical", 31))
sketch4.addConstraint(Sketcher.Constraint("Horizontal", 32))
sketch4.addConstraint(Sketcher.Constraint("Vertical", 33))
sketch4.addConstraint(Sketcher.Constraint("Horizontal", 34))
sketch4.addConstraint(Sketcher.Constraint("Vertical", 35))
sketch4.addConstraint(Sketcher.Constraint("Horizontal", 36))
sketch4.addConstraint(Sketcher.Constraint("Vertical", 37))
sketch4.addConstraint(Sketcher.Constraint("Horizontal", 38))
sketch4.addConstraint(Sketcher.Constraint("Vertical", 39))
sketch4.addConstraint(Sketcher.Constraint("Vertical", 40))
sketch4.addConstraint(Sketcher.Constraint("Horizontal", 41))
sketch4.addConstraint(Sketcher.Constraint("Vertical", 42))
sketch4.addConstraint(Sketcher.Constraint("Horizontal", 43))
sketch4.addConstraint(Sketcher.Constraint("Vertical", 44))
sketch4.addConstraint(Sketcher.Constraint("Horizontal", 45))
sketch4.addConstraint(Sketcher.Constraint("Vertical", 46))
sketch4.addConstraint(Sketcher.Constraint("Horizontal", 47))
sketch4.addConstraint(Sketcher.Constraint("Vertical", 48))
sketch4.addConstraint(Sketcher.Constraint("Horizontal", 49))
sketch4.addConstraint(Sketcher.Constraint("Vertical", 50))
sketch4.addConstraint(Sketcher.Constraint("Horizontal", 51))
sketch4.addConstraint(Sketcher.Constraint("Vertical", 52))
sketch4.addConstraint(Sketcher.Constraint("Horizontal", 53))
sketch4.addConstraint(Sketcher.Constraint("Vertical", 54))
sketch4.addConstraint(Sketcher.Constraint("Horizontal", 55))
sketch4.addConstraint(Sketcher.Constraint("Symmetric", 2, 2, 5, 2, -2))
sketch4.addConstraint(Sketcher.Constraint("Symmetric", 15, 2, 20, 2, -2))
sketch4.addConstraint(Sketcher.Constraint("Symmetric", 13, 2, 22, 2, -2))
sketch4.addConstraint(Sketcher.Constraint("Symmetric", 11, 2, 24, 2, -2))
sketch4.addConstraint(Sketcher.Constraint("Symmetric", 9, 2, 26, 2, -2))
sketch4.addConstraint(Sketcher.Constraint("Symmetric", 19, 2, 28, 2, -2))
sketch4.addConstraint(Sketcher.Constraint("Symmetric", 17, 2, 30, 2, -2))
sketch4.addConstraint(Sketcher.Constraint("Symmetric", 35, 2, 36, 2, -2))
sketch4.addConstraint(Sketcher.Constraint("Symmetric", 33, 2, 38, 2, -2))
sketch4.addConstraint(Sketcher.Constraint("Symmetric", 47, 2, 50, 2, -2))
sketch4.addConstraint(Sketcher.Constraint("Symmetric", 45, 2, 52, 2, -2))
sketch4.addConstraint(Sketcher.Constraint("Symmetric", 43, 2, 54, 2, -2))
sketch4.addConstraint(Sketcher.Constraint("Horizontal", 11, 2, 13, 2))
sketch4.addConstraint(Sketcher.Constraint("Vertical", 9, 2, 16, 2))
sketch4.addConstraint(Sketcher.Constraint("Vertical", 11, 2, 18, 2))
sketch4.addConstraint(Sketcher.Constraint("Vertical", 17, 2, 32, 2))
sketch4.addConstraint(Sketcher.Constraint("Vertical", 19, 2, 34, 2))
sketch4.addConstraint(Sketcher.Constraint("Vertical", 33, 2, 40, 2))
sketch4.addConstraint(Sketcher.Constraint("Vertical", 39, 2, 41, 2))
sketch4.addConstraint(Sketcher.Constraint("Vertical", 37, 2, 43, 2))
sketch4.addConstraint(Sketcher.Constraint("Vertical", 42, 2, 45, 2))
sketch4.addConstraint(Sketcher.Constraint("Vertical", 44, 2, 47, 2))
sketch4.addConstraint(Sketcher.Constraint("Equal", 2, 6))
sketch4.addConstraint(Sketcher.Constraint("Equal", 6, 3))
sketch4.addConstraint(Sketcher.Constraint("Equal", 55, 13))
sketch4.addConstraint(Sketcher.Constraint("Equal", 11, 17))
sketch4.addConstraint(Sketcher.Constraint("Equal", 31, 33))
sketch4.addConstraint(Sketcher.Constraint("Equal", 39, 40))
sketch4.addConstraint(Sketcher.Constraint("Equal", 42, 46))
sketch4.addConstraint(Sketcher.Constraint("DistanceX", 0, 1, 0, 2, Q("72 mm")))
sketch4.addConstraint(Sketcher.Constraint("DistanceX", 2, 2, 2, 1, Q("15 mm")))
sketch4.addConstraint(Sketcher.Constraint("DistanceX", 8, 2, 8, 1, Q("4 mm")))
sketch4.addConstraint(Sketcher.Constraint("DistanceX", 12, 2, 12, 1, Q("10 mm")))
sketch4.addConstraint(Sketcher.Constraint("DistanceX", 41, 1, 41, 2, Q("68 mm")))
sketch4.addConstraint(Sketcher.Constraint("DistanceY", 1, 1, 1, 2, Q("113 mm")))
sketch4.addConstraint(Sketcher.Constraint("DistanceY", 9, 1, 9, 2, Q("9 mm")))
sketch4.addConstraint(Sketcher.Constraint("DistanceY", 44, 2, 44, 1, Q("11 mm")))
sketch4.addConstraint(Sketcher.Constraint("DistanceY", 48, 2, 48, 1, Q("6 mm")))
sketch4.addConstraint(Sketcher.Constraint("DistanceX", 12, 2, -1, 1, Q("26 mm")))
sketch4.addConstraint(Sketcher.Constraint("DistanceY", 7, 2, 8, 2, Q("6 mm")))
sketch4.addConstraint(Sketcher.Constraint("DistanceY", 9, 2, 16, 2, Q("11 mm")))
sketch4.addConstraint(Sketcher.Constraint("DistanceY", 17, 2, 32, 2, Q("11 mm")))
sketch4.addConstraint(Sketcher.Constraint("DistanceY", 40, 2, 4, 2, Q("3 mm")))
sketch4.addConstraint(Sketcher.Constraint("DistanceY", 0, 2, -1, 1, Q("77.5 mm")))
pad2 = body.newObject("PartDesign::Pad", "Pad001")
pad2.Profile = sketch4
pad2.Length = 4
pad2.Reversed = True

sketch5 = body.newObject("Sketcher::SketchObject", "Sketch004")
sketch5.AttachmentSupport = (doc.getObject("XY_Plane"), [""])
sketch5.MapMode = "FlatFace"
sketch5.AttachmentOffset = App.Placement(V(0, 0, 4), App.Rotation())
sketch5.addGeometry(Part.Circle(V(-32, -37, 0), V(0, 0, 1), 1.6), False)
sketch5.addGeometry(Part.Circle(V(32, -37, 0), V(0, 0, 1), 1.6), False)
sketch5.addConstraint(Sketcher.Constraint("Equal", 0, 1))
sketch5.addConstraint(Sketcher.Constraint("Symmetric", 0, 3, 1, 3, -2))
sketch5.addConstraint(Sketcher.Constraint("Diameter", 0, Q("3.3 mm")))
sketch5.addConstraint(Sketcher.Constraint("DistanceX", 0, 3, -1, 1, Q("32 mm")))
sketch5.addConstraint(Sketcher.Constraint("DistanceY", 0, 3, -1, 1, Q("37 mm")))
doc.recompute()
hole3 = body.newObject("PartDesign::Hole", "Hole002")
hole3.Profile = sketch5
hole3.ThreadType = "None"
hole3.Diameter = 3.3
hole3.DepthType = "ThroughAll"
doc.recompute()

fillet = body.newObject("PartDesign::Fillet", "Fillet")
fillet.Base = (hole3, edges_at(hole3, [
    (-36, -77.5, 2),
    (36, -77.5, 2),
    (-21, 20.5, 2),
    (-21, 35.5, 2),
    (-36, 35.5, 2),
    (21, 35.5, 2),
    (21, 20.5, 2),
    (36, 35.5, 2),
]))
fillet.Radius = 5

doc.recompute()
